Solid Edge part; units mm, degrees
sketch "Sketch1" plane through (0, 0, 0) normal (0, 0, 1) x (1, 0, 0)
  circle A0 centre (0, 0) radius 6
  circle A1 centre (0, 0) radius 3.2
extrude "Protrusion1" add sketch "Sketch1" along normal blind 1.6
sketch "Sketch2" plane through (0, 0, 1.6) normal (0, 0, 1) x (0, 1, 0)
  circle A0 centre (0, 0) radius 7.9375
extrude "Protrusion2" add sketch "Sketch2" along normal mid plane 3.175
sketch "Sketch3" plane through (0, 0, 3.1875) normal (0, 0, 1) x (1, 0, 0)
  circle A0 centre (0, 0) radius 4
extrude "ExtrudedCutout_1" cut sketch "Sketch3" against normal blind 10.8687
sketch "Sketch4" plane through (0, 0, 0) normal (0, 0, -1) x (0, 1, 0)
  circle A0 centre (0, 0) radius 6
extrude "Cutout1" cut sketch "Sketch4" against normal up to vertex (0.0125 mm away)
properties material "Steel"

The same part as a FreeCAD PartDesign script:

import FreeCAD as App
import Part
import Sketcher

doc = App.newDocument("Part")
body = doc.addObject("PartDesign::Body", "Body")

# Sketch on XY plane
sketch1 = doc.addObject("Sketcher::SketchObject", "Sketch")
body.addObject(sketch1)
sketch1.AttachmentSupport = (doc.XY_Plane, [""])
sketch1.MapMode = "FlatFace"
sketch1.addGeometry(Part.Circle(App.Vector(0, 0, 0), App.Vector(0, 0, 1), 6), False)
sketch1.addGeometry(Part.Circle(App.Vector(0, 0, 0), App.Vector(0, 0, 1), 3.2), False)
sketch1.addConstraint(Sketcher.Constraint("Coincident", 0, 3, -1, 1))
sketch1.addConstraint(Sketcher.Constraint("Coincident", 1, 3, -1, 1))
sketch1.addConstraint(Sketcher.Constraint("Diameter", 0, 12.0))
sketch1.addConstraint(Sketcher.Constraint("Diameter", 1, 6.4))
pad1 = doc.addObject("PartDesign::Pad", "Pad")
body.addObject(pad1)
pad1.Profile = sketch1
pad1.Length = 1.6

# Sketch on XY plane
sketch2 = doc.addObject("Sketcher::SketchObject", "Sketch001")
body.addObject(sketch2)
sketch2.AttachmentSupport = (doc.XY_Plane, [""])
sketch2.MapMode = "FlatFace"
sketch2.AttachmentOffset = App.Placement(App.Vector(0, 0, 1.6), App.Rotation())
sketch2.addGeometry(Part.Circle(App.Vector(0, 0, 0), App.Vector(0, 0, 1), 8), False)
sketch2.addConstraint(Sketcher.Constraint("Coincident", 0, 3, -1, 1))
sketch2.addConstraint(Sketcher.Constraint("Diameter", 0, 15.875))
pad2 = doc.addObject("PartDesign::Pad", "Pad001")
body.addObject(pad2)
pad2.Profile = sketch2
pad2.Length = 3.175
pad2.Midplane = True

# Sketch on XY plane
sketch3 = doc.addObject("Sketcher::SketchObject", "Sketch002")
body.addObject(sketch3)
sketch3.AttachmentSupport = (doc.XY_Plane, [""])
sketch3.MapMode = "FlatFace"
sketch3.AttachmentOffset = App.Placement(App.Vector(0, 0, 3.1875), App.Rotation())
sketch3.addGeometry(Part.Circle(App.Vector(0, 0, 0), App.Vector(0, 0, 1), 4), False)
sketch3.addConstraint(Sketcher.Constraint("Coincident", 0, 3, -1, 1))
sketch3.addConstraint(Sketcher.Constraint("Diameter", 0, 8.0))
pocket1 = doc.addObject("PartDesign::Pocket", "Pocket")
body.addObject(pocket1)
pocket1.Profile = sketch3
pocket1.Length = 10.8687

# Sketch on XY plane
sketch4 = doc.addObject("Sketcher::SketchObject", "Sketch003")
body.addObject(sketch4)
sketch4.AttachmentSupport = (doc.XY_Plane, [""])
sketch4.MapMode = "FlatFace"
sketch4.addGeometry(Part.Circle(App.Vector(0, 0, 0), App.Vector(0, 0, 1), 6), False)
sketch4.addConstraint(Sketcher.Constraint("Coincident", 0, 3, -1, 1))
sketch4.addConstraint(Sketcher.Constraint("Diameter", 0, 12.0))
pocket2 = doc.addObject("PartDesign::Pocket", "Pocket001")
body.addObject(pocket2)
pocket2.Profile = sketch4
pocket2.Length = 0.0125
pocket2.Reversed = True

doc.recompute()
